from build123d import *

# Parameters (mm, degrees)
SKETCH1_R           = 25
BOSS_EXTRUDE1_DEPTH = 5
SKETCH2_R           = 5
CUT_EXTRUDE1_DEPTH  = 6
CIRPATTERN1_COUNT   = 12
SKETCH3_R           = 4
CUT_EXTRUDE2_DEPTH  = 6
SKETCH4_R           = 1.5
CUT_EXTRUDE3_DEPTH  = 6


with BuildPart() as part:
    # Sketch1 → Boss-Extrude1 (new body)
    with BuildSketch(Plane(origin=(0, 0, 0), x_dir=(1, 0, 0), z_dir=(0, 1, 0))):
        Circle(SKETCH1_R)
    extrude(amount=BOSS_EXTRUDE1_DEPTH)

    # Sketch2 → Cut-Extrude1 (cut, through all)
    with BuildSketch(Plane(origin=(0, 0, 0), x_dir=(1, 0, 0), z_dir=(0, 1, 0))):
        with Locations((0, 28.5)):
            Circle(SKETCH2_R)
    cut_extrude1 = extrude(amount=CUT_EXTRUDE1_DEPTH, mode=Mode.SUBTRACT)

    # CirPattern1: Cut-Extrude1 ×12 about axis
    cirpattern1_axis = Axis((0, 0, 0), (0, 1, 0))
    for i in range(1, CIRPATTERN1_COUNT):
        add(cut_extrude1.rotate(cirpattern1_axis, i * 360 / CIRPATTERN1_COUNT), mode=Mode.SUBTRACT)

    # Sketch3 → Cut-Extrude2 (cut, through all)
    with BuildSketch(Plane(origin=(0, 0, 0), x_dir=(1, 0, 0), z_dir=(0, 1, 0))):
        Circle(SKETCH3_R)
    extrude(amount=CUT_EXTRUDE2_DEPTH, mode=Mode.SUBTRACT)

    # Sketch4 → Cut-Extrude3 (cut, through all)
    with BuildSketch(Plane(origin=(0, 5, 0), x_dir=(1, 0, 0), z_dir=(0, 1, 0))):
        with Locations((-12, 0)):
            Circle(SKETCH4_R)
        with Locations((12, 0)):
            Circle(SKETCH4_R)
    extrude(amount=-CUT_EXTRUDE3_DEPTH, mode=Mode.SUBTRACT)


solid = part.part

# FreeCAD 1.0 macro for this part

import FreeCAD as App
import Part
import Sketcher
from FreeCAD import Vector

doc = App.newDocument("Part")
body = doc.addObject("PartDesign::Body", "Body")

# Sketch on XZ plane
sketch1 = doc.addObject("Sketcher::SketchObject", "Sketch")
body.addObject(sketch1)
sketch1.AttachmentSupport = (doc.XZ_Plane, [""])
sketch1.MapMode = "FlatFace"
sketch1.addGeometry(Part.Circle(Vector(0, 0, 0), Vector(0, 0, 1), 25), False)
sketch1.addConstraint([
    Sketcher.Constraint("Coincident", 0, 3, -1, 1),
    Sketcher.Constraint("Diameter", 0, 50.0),
])
pad1 = doc.addObject("PartDesign::Pad", "Pad")
body.addObject(pad1)
pad1.Profile = sketch1
pad1.Length = 5
pad1.Reversed = True

# Sketch on XZ plane
sketch2 = doc.addObject("Sketcher::SketchObject", "Sketch001")
body.addObject(sketch2)
sketch2.AttachmentSupport = (doc.XZ_Plane, [""])
sketch2.MapMode = "FlatFace"
sketch2.addGeometry(Part.Circle(Vector(0, -28.5, 0), Vector(0, 0, 1), 5), False)
sketch2.addConstraint([
    Sketcher.Constraint("PointOnObject", 0, 3, -2),
    Sketcher.Constraint("Diameter", 0, 10.0),
    Sketcher.Constraint("DistanceY", 0, 3, -1, 1, 28.5),
])
pocket1 = doc.addObject("PartDesign::Pocket", "Pocket")
body.addObject(pocket1)
pocket1.Profile = sketch2
pocket1.Type = "ThroughAll"
doc.recompute()

polarpattern = doc.addObject("PartDesign::PolarPattern", "PolarPattern")
body.addObject(polarpattern)
polarpattern.Originals = [pocket1]
polarpattern.Axis = (doc.Y_Axis, [""])
polarpattern.Angle = 360
polarpattern.Occurrences = 12
body.Tip = polarpattern

# Sketch on XZ plane
sketch3 = doc.addObject("Sketcher::SketchObject", "Sketch002")
body.addObject(sketch3)
sketch3.AttachmentSupport = (doc.XZ_Plane, [""])
sketch3.MapMode = "FlatFace"
sketch3.addGeometry(Part.Circle(Vector(0, 0, 0), Vector(0, 0, 1), 4), False)
sketch3.addConstraint([
    Sketcher.Constraint("Coincident", 0, 3, -1, 1),
    Sketcher.Constraint("Diameter", 0, 8.0),
])
pocket2 = doc.addObject("PartDesign::Pocket", "Pocket001")
body.addObject(pocket2)
pocket2.Profile = sketch3
pocket2.Type = "ThroughAll"

# Sketch on XZ plane
sketch4 = doc.addObject("Sketcher::SketchObject", "Sketch003")
body.addObject(sketch4)
sketch4.AttachmentSupport = (doc.XZ_Plane, [""])
sketch4.MapMode = "FlatFace"
sketch4.AttachmentOffset = App.Placement(Vector(0, 0, -5), App.Rotation())
sketch4.addGeometry([
    Part.Circle(Vector(-12, 0, 0), Vector(0, 0, 1), 1.5),
    Part.Circle(Vector(12, 0, 0), Vector(0, 0, 1), 1.5),
], False)
sketch4.addConstraint([
    Sketcher.Constraint("Equal", 0, 1),
    Sketcher.Constraint("Symmetric", 0, 3, 1, 3, -1, 1),
    Sketcher.Constraint("PointOnObject", 0, 3, -1),
    Sketcher.Constraint("Diameter", 0, 3.0),
    Sketcher.Constraint("DistanceX", 0, 3, -1, 1, 12.0),
])
pocket3 = doc.addObject("PartDesign::Pocket", "Pocket002")
body.addObject(pocket3)
pocket3.Profile = sketch4
pocket3.Type = "ThroughAll"
pocket3.Reversed = True

doc.recompute()
